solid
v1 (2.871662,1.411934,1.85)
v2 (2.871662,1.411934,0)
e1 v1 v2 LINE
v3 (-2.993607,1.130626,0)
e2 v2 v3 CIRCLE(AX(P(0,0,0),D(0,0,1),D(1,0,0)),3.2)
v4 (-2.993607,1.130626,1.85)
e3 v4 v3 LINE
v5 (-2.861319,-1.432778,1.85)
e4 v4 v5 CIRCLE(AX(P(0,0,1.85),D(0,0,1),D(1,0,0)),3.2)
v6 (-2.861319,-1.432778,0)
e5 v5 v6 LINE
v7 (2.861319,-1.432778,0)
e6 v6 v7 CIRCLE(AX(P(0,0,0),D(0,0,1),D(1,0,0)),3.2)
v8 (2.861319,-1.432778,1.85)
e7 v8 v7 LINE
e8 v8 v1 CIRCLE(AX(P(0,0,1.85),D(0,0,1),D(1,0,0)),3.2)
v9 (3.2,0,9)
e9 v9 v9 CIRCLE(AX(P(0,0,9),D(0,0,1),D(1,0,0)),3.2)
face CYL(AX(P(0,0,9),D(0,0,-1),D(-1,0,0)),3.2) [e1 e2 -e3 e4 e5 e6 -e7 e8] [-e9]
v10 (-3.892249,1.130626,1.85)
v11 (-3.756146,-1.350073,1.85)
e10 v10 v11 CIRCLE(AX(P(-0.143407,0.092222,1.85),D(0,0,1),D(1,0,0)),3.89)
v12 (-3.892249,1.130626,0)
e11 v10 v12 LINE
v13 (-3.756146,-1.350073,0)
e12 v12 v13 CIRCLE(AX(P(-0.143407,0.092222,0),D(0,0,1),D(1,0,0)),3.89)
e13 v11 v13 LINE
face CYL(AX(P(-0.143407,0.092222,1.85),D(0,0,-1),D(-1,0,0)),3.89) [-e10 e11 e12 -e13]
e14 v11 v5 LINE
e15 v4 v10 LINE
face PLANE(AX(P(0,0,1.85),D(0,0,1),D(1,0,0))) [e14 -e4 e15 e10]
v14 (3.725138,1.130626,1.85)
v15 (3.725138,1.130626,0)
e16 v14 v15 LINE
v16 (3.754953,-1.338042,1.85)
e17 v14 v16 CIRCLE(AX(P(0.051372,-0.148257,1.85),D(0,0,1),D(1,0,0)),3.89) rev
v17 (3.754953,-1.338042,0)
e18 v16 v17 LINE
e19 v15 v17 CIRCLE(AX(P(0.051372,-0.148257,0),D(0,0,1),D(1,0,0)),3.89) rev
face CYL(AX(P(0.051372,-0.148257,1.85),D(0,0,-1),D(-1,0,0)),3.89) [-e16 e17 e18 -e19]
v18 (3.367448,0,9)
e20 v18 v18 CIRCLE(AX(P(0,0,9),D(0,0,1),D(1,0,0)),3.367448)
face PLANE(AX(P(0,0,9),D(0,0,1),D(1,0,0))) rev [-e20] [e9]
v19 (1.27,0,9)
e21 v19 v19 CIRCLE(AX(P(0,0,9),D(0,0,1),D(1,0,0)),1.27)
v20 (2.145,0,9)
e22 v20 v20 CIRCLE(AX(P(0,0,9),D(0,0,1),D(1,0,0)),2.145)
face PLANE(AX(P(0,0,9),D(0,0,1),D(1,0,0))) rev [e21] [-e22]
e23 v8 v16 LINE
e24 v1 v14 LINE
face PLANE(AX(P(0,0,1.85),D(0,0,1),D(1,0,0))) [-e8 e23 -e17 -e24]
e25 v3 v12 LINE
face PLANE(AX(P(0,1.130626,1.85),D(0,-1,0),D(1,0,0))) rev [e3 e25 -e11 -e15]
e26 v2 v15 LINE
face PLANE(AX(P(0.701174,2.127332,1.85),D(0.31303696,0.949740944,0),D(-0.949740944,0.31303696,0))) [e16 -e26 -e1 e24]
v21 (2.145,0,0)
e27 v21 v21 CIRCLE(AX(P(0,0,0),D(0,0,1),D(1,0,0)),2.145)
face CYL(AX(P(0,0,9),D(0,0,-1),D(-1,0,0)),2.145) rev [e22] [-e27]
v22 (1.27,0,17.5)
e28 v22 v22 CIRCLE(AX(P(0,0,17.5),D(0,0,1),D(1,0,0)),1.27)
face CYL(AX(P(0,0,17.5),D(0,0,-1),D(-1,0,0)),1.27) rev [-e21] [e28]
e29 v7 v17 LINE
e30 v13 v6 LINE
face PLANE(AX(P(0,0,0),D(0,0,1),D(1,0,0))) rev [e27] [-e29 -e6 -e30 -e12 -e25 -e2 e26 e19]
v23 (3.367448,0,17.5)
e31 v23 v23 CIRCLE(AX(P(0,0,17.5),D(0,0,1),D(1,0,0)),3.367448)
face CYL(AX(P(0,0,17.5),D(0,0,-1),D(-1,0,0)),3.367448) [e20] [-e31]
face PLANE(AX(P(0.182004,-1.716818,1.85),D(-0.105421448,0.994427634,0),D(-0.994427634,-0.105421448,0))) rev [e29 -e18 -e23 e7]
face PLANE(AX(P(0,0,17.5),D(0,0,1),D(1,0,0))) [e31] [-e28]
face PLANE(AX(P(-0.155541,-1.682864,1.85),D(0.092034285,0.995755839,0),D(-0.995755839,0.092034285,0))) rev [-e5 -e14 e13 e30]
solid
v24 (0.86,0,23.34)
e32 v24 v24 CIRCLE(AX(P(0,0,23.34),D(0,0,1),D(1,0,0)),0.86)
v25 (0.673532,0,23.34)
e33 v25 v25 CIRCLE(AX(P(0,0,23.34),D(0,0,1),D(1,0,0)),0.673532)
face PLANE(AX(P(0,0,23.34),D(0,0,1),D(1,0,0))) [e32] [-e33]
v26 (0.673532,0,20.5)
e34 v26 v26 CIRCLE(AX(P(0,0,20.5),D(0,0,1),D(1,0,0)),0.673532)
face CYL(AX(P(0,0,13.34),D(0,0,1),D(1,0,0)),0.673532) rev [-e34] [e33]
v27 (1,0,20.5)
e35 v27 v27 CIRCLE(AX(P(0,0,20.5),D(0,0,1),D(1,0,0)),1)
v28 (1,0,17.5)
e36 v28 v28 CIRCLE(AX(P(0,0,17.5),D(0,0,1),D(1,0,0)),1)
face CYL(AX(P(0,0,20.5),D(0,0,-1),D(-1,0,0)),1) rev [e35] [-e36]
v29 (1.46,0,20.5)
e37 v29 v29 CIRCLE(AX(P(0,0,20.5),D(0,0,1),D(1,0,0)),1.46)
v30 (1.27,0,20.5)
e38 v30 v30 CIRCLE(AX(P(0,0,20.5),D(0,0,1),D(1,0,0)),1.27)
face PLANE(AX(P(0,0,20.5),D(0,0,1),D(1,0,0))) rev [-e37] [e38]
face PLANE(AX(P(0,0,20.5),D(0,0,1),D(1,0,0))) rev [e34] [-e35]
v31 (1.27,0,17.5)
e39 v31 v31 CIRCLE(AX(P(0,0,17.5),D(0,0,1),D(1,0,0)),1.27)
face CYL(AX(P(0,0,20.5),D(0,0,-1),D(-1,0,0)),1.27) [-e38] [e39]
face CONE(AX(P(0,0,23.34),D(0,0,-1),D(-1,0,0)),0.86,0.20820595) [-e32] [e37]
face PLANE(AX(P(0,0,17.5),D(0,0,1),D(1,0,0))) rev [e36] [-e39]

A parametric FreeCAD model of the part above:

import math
import FreeCAD as App
import Part
import Sketcher

V = App.Vector
Q = App.Units.Quantity

doc = App.newDocument("Part")
body = doc.addObject("PartDesign::Body", "Body")

# Sketch on XY plane
sketch1 = doc.addObject("Sketcher::SketchObject", "Sketch")
body.addObject(sketch1)
sketch1.AttachmentSupport = (doc.XY_Plane, [""])
sketch1.MapMode = "FlatFace"
sketch1.addGeometry(Part.Circle(V(0, 0, 0), V(0, 0, 1), 3.2), False)
sketch1.addConstraint([
    Sketcher.Constraint("Coincident", 0, 3, -1, 1),
    Sketcher.Constraint("Diameter", 0, Q("6.4 mm")),
])
pad1 = doc.addObject("PartDesign::Pad", "Pad")
body.addObject(pad1)
pad1.Profile = sketch1
pad1.Length = 9

# Sketch on XY plane
sketch2 = doc.addObject("Sketcher::SketchObject", "Sketch001")
body.addObject(sketch2)
sketch2.AttachmentSupport = (doc.XY_Plane, [""])
sketch2.MapMode = "FlatFace"
sketch2.addGeometry(Part.Circle(V(0, 0, 0), V(0, 0, 1), 2.145), False)
sketch2.addConstraint([
    Sketcher.Constraint("Coincident", 0, 3, -1, 1),
    Sketcher.Constraint("Diameter", 0, Q("4.29 mm")),
])
pocket1 = doc.addObject("PartDesign::Pocket", "Pocket")
body.addObject(pocket1)
pocket1.Profile = sketch2
pocket1.Length = 9
pocket1.Reversed = True

# Sketch on XY plane
sketch3 = doc.addObject("Sketcher::SketchObject", "Sketch002")
body.addObject(sketch3)
sketch3.AttachmentSupport = (doc.XY_Plane, [""])
sketch3.MapMode = "FlatFace"
sketch3.AttachmentOffset = App.Placement(V(0, 0, 9), App.Rotation())
sketch3.addGeometry([
    Part.Circle(V(0, 0, 0), V(0, 0, 1), 3.367448),
    Part.Circle(V(0, 0, 0), V(0, 0, 1), 1.27),
], False)
sketch3.addConstraint([
    Sketcher.Constraint("Coincident", 0, 3, -1, 1),
    Sketcher.Constraint("Coincident", 1, 3, -1, 1),
    Sketcher.Constraint("Diameter", 1, Q("2.54 mm")),
    Sketcher.Constraint("Diameter", 0, Q("6.734895 mm")),
])
pad2 = doc.addObject("PartDesign::Pad", "Pad001")
body.addObject(pad2)
pad2.Profile = sketch3
pad2.Length = 8.5

# Sketch on XY plane
sketch4 = doc.addObject("Sketcher::SketchObject", "Sketch003")
body.addObject(sketch4)
sketch4.AttachmentSupport = (doc.XY_Plane, [""])
sketch4.MapMode = "FlatFace"
sketch4.addGeometry([
    Part.ArcOfCircle(Part.Circle(V(0, 0, 0), V(0, 0, 1), 3.2), math.radians(159.309439), math.radians(206.598985)),  # 0
    Part.LineSegment(V(-2.993607, 1.130626, 0), V(-3.892249, 1.130626, 0)),  # 1
    Part.ArcOfCircle(Part.Circle(V(-0.143407, 0.092222, 0), V(0, 0, 1), 3.89), math.radians(164.517615), math.radians(201.763094)),  # 2
    Part.LineSegment(V(-3.756146, -1.350073, 0), V(-2.861319, -1.432778, 0)),  # 3
    Part.LineSegment(V(3.725138, 1.130626, 0), V(2.871662, 1.411934, 0)),  # 4
    Part.ArcOfCircle(Part.Circle(V(0, 0, 0), V(0, 0, 1), 3.2), math.radians(0), math.radians(26.182352)),  # 5
    Part.ArcOfCircle(Part.Circle(V(0, 0, 0), V(0, 0, 1), 3.2), math.radians(-26.598985), math.radians(0)),  # 6
    Part.LineSegment(V(2.861319, -1.432778, 0), V(3.754953, -1.338042, 0)),  # 7
    Part.ArcOfCircle(Part.Circle(V(0.051372, -0.148257, 0), V(0, 0, 1), 3.89), math.radians(-17.809761), math.radians(19.193632)),  # 8
], False)
sketch4.addConstraint([
    Sketcher.Constraint("Coincident", 0, 1, 1, 1),
    Sketcher.Constraint("Coincident", 1, 2, 2, 1),
    Sketcher.Constraint("Coincident", 2, 2, 3, 1),
    Sketcher.Constraint("Coincident", 3, 2, 0, 2),
    Sketcher.Constraint("Coincident", 4, 2, 5, 2),
    Sketcher.Constraint("Tangent", 5, 1, 6, 2),
    Sketcher.Constraint("Coincident", 6, 1, 7, 1),
    Sketcher.Constraint("Coincident", 7, 2, 8, 1),
    Sketcher.Constraint("Coincident", 8, 2, 4, 1),
    Sketcher.Constraint("Horizontal", 1),
    Sketcher.Constraint("Coincident", 0, 3, -1, 1),
    Sketcher.Constraint("Coincident", 5, 3, -1, 1),
    Sketcher.Constraint("Equal", 0, 5),
    Sketcher.Constraint("Equal", 5, 6),
    Sketcher.Constraint("Equal", 2, 8),
    Sketcher.Constraint("PointOnObject", 5, 1, -1),
    Sketcher.Constraint("Horizontal", 3, 2, 6, 1),
    Sketcher.Constraint("Horizontal", 1, 2, 8, 2),
    Sketcher.Constraint("Equal", 3, 4),
    Sketcher.Constraint("Equal", 4, 7),
    Sketcher.Constraint("Radius", 0, Q("3.2 mm")),
    Sketcher.Constraint("Radius", 2, Q("3.89 mm")),
    Sketcher.Constraint("DistanceY", 3, 2, 2, 3, Q("1.525 mm")),
    Sketcher.Constraint("DistanceX", 1, 2, 1, 1, Q("0.898641 mm")),
    Sketcher.Constraint("DistanceX", 0, 1, 2, 3, Q("2.850201 mm")),
    Sketcher.Constraint("DistanceY", 2, 2, 1, 2, Q("2.480699 mm")),
    Sketcher.Constraint("Distance", 3, Q("0.898641 mm")),
    Sketcher.Constraint("DistanceX", -1, 1, 4, 2, Q("2.871662 mm")),
    Sketcher.Constraint("DistanceX", 2, 3, 8, 3, Q("0.194779 mm")),
])
pad3 = doc.addObject("PartDesign::Pad", "Pad002")
body.addObject(pad3)
pad3.Profile = sketch4
pad3.Length = 1.85
body2 = doc.addObject("PartDesign::Body", "Body001")

# Sketch on XY plane
sketch5 = doc.addObject("Sketcher::SketchObject", "Sketch004")
body2.addObject(sketch5)
sketch5.AttachmentSupport = (doc.getObject("XY_Plane001"), [""])
sketch5.MapMode = "FlatFace"
sketch5.AttachmentOffset = App.Placement(V(0, 0, 17.5), App.Rotation())
sketch5.addGeometry([
    Part.Circle(V(0, 0, 0), V(0, 0, 1), 1.27),
    Part.Circle(V(0, 0, 0), V(0, 0, 1), 1),
], False)
sketch5.addConstraint([
    Sketcher.Constraint("Coincident", 0, 3, -1, 1),
    Sketcher.Constraint("Coincident", 1, 3, -1, 1),
    Sketcher.Constraint("Diameter", 1, Q("2 mm")),
    Sketcher.Constraint("Diameter", 0, Q("2.54 mm")),
])
pad4 = doc.addObject("PartDesign::Pad", "Pad003")
body2.addObject(pad4)
pad4.Profile = sketch5
pad4.Length = 3

# Sketch on XY plane
sketch6 = doc.addObject("Sketcher::SketchObject", "Sketch005")
body2.addObject(sketch6)
sketch6.AttachmentSupport = (doc.getObject("XY_Plane001"), [""])
sketch6.MapMode = "FlatFace"
sketch6.AttachmentOffset = App.Placement(V(0, 0, 20.5), App.Rotation())
sketch6.addGeometry(Part.Circle(V(0, 0, 0), V(0, 0, 1), 1.46), False)
sketch6.addConstraint([
    Sketcher.Constraint("Coincident", 0, 3, -1, 1),
    Sketcher.Constraint("Diameter", 0, Q("2.92 mm")),
])

# Sketch on XY plane
sketch7 = doc.addObject("Sketcher::SketchObject", "Sketch006")
body2.addObject(sketch7)
sketch7.AttachmentSupport = (doc.getObject("XY_Plane001"), [""])
sketch7.MapMode = "FlatFace"
sketch7.AttachmentOffset = App.Placement(V(0, 0, 23.34), App.Rotation())
sketch7.addGeometry(Part.Circle(V(0, 0, 0), V(0, 0, 1), 0.86), False)
sketch7.addConstraint([
    Sketcher.Constraint("Coincident", 0, 3, -1, 1),
    Sketcher.Constraint("Diameter", 0, Q("1.72 mm")),
])

additiveloft = doc.addObject("PartDesign::AdditiveLoft", "AdditiveLoft")
body2.addObject(additiveloft)
additiveloft.Profile = sketch6
additiveloft.Sections = [sketch7]

# Sketch on XY plane
sketch8 = doc.addObject("Sketcher::SketchObject", "Sketch007")
body2.addObject(sketch8)
sketch8.AttachmentSupport = (doc.getObject("XY_Plane001"), [""])
sketch8.MapMode = "FlatFace"
sketch8.AttachmentOffset = App.Placement(V(0, 0, 23.34), App.Rotation())
sketch8.addGeometry(Part.Circle(V(0, 0, 0), V(0, 0, 1), 0.673532), False)
sketch8.addConstraint([
    Sketcher.Constraint("Coincident", 0, 3, -1, 1),
    Sketcher.Constraint("Diameter", 0, Q("1.347065 mm")),
])
pocket2 = doc.addObject("PartDesign::Pocket", "Pocket001")
body2.addObject(pocket2)
pocket2.Profile = sketch8
pocket2.Length = 10

doc.recompute()
